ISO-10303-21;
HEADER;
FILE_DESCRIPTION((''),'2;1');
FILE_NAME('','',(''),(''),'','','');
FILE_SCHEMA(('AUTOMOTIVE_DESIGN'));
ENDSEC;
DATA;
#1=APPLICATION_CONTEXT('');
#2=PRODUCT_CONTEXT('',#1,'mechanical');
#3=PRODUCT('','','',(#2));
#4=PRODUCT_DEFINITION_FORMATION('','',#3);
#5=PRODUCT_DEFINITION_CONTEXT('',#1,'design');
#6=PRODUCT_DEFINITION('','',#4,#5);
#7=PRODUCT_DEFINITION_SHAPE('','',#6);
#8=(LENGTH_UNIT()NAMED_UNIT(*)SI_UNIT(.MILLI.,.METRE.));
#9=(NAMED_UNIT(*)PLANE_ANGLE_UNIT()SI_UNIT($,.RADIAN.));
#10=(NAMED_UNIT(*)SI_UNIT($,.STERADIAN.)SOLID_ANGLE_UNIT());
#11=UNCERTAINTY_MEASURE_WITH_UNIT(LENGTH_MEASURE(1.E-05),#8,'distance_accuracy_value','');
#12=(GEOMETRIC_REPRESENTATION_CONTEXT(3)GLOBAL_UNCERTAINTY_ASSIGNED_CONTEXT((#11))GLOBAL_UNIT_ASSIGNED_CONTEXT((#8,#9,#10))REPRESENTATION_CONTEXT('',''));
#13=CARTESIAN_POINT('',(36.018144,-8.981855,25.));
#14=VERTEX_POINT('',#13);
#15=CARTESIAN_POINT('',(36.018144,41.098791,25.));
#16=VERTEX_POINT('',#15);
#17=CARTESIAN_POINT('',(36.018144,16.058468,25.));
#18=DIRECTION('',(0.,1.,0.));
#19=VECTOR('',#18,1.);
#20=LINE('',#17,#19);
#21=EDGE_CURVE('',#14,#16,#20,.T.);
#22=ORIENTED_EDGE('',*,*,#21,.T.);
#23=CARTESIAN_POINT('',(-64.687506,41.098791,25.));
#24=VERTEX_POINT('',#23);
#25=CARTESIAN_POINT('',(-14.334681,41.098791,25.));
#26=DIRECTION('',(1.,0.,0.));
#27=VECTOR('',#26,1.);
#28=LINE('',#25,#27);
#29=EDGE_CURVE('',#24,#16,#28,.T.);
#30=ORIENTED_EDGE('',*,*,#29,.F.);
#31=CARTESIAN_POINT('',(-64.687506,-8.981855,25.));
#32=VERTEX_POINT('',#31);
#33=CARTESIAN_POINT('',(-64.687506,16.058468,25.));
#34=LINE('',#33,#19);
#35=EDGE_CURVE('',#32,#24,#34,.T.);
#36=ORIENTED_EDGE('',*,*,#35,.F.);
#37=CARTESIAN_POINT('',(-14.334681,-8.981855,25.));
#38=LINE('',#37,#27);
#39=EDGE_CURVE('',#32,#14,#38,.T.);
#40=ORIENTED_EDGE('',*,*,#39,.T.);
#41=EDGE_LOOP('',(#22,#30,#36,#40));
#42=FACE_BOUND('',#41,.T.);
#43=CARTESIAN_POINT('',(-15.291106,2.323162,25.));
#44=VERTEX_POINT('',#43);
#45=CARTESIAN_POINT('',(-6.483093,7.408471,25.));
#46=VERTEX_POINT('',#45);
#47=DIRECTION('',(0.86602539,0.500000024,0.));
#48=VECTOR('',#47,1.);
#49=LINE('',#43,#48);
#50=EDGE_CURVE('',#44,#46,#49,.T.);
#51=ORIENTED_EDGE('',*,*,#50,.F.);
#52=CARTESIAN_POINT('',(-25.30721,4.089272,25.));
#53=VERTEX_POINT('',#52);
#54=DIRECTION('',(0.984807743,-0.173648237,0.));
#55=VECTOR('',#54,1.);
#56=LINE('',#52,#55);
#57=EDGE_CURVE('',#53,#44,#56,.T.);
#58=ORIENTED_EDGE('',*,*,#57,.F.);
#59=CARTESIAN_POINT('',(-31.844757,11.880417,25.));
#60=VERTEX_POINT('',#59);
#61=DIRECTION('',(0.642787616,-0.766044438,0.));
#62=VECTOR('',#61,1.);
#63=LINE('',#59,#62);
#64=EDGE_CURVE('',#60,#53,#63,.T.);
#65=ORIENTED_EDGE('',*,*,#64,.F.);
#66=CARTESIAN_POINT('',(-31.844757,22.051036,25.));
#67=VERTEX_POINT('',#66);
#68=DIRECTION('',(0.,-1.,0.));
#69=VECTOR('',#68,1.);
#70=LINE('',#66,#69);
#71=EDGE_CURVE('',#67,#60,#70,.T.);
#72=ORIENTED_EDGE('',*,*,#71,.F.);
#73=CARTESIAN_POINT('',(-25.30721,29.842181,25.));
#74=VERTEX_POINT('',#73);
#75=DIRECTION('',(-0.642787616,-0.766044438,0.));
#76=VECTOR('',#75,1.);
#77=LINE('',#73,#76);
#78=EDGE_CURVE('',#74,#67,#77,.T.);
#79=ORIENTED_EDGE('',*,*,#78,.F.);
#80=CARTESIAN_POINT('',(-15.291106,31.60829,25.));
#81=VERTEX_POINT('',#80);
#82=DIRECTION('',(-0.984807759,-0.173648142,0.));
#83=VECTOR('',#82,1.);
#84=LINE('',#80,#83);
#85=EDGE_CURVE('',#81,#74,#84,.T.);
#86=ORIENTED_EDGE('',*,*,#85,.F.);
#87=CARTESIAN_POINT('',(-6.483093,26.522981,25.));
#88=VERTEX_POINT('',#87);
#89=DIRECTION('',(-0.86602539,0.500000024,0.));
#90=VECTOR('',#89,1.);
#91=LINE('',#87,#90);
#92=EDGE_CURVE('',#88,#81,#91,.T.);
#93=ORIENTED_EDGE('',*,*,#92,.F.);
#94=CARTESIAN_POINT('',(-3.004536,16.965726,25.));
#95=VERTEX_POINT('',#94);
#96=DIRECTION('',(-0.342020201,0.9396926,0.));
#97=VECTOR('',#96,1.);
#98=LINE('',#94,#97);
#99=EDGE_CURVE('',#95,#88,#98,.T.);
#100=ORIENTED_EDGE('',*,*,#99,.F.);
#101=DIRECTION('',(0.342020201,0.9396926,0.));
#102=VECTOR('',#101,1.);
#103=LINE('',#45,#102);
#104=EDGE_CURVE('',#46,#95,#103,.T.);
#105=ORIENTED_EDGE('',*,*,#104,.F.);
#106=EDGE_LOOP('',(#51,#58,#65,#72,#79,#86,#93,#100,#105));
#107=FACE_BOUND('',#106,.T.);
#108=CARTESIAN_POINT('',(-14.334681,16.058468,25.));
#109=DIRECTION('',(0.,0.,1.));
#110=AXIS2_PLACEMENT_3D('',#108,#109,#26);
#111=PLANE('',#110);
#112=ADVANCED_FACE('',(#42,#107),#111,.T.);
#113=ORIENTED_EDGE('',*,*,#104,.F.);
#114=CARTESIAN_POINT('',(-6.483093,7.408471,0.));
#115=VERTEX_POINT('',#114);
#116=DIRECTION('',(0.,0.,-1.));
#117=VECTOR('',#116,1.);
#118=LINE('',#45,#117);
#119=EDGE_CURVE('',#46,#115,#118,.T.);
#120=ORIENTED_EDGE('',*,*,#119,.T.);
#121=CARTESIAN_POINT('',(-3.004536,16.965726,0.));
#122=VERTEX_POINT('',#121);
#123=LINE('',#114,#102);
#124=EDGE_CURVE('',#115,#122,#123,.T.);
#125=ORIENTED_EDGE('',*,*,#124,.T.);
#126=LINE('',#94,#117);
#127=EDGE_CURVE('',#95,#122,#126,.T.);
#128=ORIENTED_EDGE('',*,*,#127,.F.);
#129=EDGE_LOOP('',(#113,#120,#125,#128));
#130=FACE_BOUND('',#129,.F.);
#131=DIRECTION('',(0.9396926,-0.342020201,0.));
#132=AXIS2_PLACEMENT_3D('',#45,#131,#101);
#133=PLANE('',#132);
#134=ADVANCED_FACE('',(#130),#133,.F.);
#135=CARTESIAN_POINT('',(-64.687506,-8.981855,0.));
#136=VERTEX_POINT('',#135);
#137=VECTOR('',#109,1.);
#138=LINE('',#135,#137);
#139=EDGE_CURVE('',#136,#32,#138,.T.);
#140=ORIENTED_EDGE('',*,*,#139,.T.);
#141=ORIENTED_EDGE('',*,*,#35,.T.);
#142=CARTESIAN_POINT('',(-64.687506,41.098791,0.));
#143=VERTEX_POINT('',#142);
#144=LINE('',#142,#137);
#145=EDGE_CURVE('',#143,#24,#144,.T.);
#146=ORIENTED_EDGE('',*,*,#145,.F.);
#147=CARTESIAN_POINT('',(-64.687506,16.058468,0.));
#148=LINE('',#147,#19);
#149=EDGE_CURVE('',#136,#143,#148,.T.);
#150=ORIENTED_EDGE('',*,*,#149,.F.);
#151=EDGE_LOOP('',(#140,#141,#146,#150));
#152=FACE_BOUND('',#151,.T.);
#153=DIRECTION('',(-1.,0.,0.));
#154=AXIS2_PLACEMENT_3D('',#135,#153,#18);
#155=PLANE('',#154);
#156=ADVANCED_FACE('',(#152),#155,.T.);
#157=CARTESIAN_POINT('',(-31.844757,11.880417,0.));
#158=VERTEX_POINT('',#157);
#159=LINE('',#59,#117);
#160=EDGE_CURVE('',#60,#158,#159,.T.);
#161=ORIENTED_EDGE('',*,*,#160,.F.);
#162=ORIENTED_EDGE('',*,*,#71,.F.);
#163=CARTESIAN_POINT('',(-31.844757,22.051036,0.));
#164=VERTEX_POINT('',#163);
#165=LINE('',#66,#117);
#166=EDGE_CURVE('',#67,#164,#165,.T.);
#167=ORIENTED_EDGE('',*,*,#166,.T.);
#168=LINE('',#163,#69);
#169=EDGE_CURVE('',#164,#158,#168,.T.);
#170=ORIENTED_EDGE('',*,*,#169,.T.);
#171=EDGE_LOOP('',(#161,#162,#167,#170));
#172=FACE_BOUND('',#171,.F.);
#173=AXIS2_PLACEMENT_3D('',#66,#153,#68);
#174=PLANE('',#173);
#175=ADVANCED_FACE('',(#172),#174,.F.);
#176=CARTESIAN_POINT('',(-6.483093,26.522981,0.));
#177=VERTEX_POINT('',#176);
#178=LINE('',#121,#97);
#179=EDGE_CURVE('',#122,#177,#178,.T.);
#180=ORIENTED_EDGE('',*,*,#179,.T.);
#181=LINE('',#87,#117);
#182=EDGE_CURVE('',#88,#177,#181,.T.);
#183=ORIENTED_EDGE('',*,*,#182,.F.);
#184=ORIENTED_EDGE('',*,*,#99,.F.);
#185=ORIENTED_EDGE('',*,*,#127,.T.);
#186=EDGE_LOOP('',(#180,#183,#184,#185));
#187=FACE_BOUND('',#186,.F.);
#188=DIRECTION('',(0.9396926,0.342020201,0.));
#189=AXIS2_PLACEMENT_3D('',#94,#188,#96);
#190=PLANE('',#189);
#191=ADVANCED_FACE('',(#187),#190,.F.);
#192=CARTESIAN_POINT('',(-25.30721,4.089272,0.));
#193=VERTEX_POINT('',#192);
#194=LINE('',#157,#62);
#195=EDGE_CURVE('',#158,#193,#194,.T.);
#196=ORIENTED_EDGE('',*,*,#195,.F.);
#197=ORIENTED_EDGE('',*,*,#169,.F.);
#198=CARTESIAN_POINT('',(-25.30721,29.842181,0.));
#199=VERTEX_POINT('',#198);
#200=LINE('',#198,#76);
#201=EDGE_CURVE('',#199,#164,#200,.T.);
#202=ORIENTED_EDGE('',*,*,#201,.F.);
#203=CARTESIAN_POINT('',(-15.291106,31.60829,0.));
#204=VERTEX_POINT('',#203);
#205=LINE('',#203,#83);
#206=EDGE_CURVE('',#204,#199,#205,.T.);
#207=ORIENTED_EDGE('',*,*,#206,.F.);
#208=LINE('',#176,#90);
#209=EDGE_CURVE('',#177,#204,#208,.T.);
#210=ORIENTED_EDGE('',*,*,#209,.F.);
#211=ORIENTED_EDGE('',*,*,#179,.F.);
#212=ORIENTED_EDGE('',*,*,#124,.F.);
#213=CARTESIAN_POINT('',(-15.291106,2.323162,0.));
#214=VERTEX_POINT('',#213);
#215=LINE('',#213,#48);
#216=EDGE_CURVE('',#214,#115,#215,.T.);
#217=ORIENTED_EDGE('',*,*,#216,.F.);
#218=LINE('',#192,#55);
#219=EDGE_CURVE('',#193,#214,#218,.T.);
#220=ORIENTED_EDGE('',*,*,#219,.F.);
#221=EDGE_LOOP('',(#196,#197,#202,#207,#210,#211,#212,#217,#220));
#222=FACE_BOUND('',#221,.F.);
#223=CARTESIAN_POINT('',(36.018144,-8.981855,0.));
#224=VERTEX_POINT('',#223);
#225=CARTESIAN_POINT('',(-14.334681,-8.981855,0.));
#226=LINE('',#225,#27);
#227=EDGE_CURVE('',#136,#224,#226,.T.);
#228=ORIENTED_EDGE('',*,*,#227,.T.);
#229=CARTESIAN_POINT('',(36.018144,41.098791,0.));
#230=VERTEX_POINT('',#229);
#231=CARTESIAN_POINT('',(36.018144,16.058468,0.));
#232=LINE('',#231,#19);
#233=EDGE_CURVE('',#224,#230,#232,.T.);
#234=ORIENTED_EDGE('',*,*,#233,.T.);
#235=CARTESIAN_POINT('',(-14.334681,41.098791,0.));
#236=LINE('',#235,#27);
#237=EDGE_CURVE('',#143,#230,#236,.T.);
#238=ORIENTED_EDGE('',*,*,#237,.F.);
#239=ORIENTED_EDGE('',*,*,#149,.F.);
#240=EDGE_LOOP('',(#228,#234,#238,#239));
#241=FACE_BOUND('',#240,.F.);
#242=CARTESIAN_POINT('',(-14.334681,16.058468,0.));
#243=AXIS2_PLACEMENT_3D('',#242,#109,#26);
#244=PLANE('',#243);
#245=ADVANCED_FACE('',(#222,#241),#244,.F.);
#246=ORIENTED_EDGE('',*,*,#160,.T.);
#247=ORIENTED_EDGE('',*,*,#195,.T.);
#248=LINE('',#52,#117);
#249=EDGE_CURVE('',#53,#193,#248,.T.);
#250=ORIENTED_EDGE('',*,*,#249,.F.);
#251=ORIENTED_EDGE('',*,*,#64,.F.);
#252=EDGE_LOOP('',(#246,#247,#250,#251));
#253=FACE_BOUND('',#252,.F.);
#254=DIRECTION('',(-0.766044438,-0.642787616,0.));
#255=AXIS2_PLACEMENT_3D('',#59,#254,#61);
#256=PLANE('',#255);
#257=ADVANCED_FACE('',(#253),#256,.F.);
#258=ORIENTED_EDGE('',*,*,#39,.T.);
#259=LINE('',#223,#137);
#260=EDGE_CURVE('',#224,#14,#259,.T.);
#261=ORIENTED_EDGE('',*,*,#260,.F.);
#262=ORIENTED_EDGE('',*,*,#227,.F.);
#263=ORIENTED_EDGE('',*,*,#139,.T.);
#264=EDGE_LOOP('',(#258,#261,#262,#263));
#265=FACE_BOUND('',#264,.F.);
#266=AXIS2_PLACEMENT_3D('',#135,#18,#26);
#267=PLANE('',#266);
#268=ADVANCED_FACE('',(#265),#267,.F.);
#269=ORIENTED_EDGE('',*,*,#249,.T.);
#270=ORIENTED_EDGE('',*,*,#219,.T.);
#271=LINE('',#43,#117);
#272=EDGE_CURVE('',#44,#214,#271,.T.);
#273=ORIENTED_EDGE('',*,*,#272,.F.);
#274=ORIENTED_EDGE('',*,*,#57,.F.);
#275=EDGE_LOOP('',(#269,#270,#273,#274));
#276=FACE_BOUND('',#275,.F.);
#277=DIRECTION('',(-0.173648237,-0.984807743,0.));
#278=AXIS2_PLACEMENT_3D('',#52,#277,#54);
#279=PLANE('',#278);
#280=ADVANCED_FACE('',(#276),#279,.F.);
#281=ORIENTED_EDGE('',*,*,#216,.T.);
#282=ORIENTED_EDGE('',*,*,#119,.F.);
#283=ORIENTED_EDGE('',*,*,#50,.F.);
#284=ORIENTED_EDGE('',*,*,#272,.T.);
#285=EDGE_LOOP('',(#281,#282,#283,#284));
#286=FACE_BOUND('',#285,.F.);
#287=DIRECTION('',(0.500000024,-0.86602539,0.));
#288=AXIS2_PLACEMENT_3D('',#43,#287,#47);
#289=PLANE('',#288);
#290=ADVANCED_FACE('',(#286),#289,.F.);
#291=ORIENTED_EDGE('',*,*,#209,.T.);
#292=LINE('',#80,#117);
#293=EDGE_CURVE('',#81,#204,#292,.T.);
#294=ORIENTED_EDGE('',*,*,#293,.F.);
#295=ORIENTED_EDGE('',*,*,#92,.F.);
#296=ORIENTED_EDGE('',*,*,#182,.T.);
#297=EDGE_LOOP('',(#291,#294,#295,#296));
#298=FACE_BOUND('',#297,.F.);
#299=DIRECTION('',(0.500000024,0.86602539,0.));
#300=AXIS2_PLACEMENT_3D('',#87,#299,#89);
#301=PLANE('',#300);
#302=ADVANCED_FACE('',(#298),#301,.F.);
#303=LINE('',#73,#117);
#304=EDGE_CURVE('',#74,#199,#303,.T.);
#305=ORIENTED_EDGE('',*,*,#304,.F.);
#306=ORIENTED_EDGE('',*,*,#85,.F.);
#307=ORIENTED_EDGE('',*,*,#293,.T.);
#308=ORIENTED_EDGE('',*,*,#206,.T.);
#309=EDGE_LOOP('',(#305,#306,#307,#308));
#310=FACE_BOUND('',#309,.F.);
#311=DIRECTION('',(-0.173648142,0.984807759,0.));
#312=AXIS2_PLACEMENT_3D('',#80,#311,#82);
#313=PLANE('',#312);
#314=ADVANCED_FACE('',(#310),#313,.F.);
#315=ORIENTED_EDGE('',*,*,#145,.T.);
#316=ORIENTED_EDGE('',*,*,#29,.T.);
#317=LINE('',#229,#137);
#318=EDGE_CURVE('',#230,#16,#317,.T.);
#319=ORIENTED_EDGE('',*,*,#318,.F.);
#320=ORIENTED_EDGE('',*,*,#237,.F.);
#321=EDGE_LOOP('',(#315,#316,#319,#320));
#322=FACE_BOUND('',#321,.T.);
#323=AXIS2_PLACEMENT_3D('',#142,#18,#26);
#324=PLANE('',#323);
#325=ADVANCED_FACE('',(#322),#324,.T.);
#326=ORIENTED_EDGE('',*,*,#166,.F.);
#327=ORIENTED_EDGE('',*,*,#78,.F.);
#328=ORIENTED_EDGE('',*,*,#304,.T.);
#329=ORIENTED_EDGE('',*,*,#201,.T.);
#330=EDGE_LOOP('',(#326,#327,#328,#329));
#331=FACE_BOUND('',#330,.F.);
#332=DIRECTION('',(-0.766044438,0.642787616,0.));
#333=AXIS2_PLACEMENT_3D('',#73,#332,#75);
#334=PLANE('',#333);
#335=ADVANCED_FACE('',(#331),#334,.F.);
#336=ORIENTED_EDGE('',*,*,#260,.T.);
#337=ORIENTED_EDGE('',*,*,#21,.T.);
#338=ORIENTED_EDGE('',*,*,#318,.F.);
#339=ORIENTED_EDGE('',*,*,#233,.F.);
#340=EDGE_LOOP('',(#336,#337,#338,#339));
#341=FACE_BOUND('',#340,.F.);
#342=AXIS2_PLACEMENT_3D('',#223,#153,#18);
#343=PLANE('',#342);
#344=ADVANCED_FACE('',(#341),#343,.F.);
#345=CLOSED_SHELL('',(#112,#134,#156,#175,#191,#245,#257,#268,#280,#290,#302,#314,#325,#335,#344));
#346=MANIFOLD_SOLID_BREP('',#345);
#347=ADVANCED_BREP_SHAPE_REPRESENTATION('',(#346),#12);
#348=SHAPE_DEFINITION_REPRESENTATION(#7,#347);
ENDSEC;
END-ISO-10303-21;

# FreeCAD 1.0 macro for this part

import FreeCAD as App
import Part
import Sketcher

V = App.Vector
Q = App.Units.Quantity


def add_polygon(sketch, points):
    """Adds a closed chain of lines whose ends are joined by coincident constraints."""
    first, n = sketch.GeometryCount, len(points)
    for a, b in zip(points, points[1:] + points[:1]):
        sketch.addGeometry(Part.LineSegment(App.Vector(*a, 0), App.Vector(*b, 0)), False)
    for i in range(n):
        sketch.addConstraint(Sketcher.Constraint("Coincident", first + i, 2, first + (i + 1) % n, 1))

doc = App.newDocument("Part")
body = doc.addObject("PartDesign::Body", "Body")

# Sketch on XY plane
sketch1 = doc.addObject("Sketcher::SketchObject", "Sketch")
body.addObject(sketch1)
sketch1.AttachmentSupport = (doc.XY_Plane, [""])
sketch1.MapMode = "FlatFace"
add_polygon(sketch1, [(-65, 41), (-65, -9), (36, -9), (36, 41)])  # lines 0-3
sketch1.addConstraint([
    Sketcher.Constraint("Vertical", 0),
    Sketcher.Constraint("Horizontal", 1),
    Sketcher.Constraint("Vertical", 2),
    Sketcher.Constraint("Horizontal", 3),
    Sketcher.Constraint("DistanceX", 1, 1, 1, 2, 100.705649),
    Sketcher.Constraint("DistanceY", 0, 2, 0, 1, 50.080647),
    Sketcher.Constraint("DistanceY", -1, 1, 2, 2, 41.098791),
    Sketcher.Constraint("DistanceX", 0, 2, -1, 1, 64.687506),
])
pad1 = doc.addObject("PartDesign::Pad", "Pad")
body.addObject(pad1)
pad1.Profile = sketch1
pad1.Length = 25

# Sketch on XY plane
sketch2 = doc.addObject("Sketcher::SketchObject", "Sketch001")
body.addObject(sketch2)
sketch2.AttachmentSupport = (doc.XY_Plane, [""])
sketch2.MapMode = "FlatFace"
sketch2.AttachmentOffset = App.Placement(V(0, 0, 25), App.Rotation())
add_polygon(sketch2, [(-32, 22), (-32, 12), (-25, 4), (-15, 2), (-6, 7), (-3, 17), (-6, 27), (-15, 32), (-25, 30)])  # lines 0-8
sketch2.addConstraint([
    Sketcher.Constraint("Vertical", 0),
    Sketcher.Constraint("Vertical", 3, 2, 5, 2),
    Sketcher.Constraint("Vertical", 2, 2, 6, 2),
    Sketcher.Constraint("Vertical", 1, 2, 7, 2),
    Sketcher.Constraint("Equal", 1, 2),
    Sketcher.Constraint("Equal", 2, 3),
    Sketcher.Constraint("Equal", 3, 4),
    Sketcher.Constraint("Equal", 4, 5),
    Sketcher.Constraint("Equal", 5, 6),
    Sketcher.Constraint("Equal", 6, 7),
    Sketcher.Constraint("Equal", 7, 8),
    Sketcher.Constraint("Angle", 1, Q("-50 deg")),
    Sketcher.Constraint("Angle", 2, Q("-10.000003 deg")),
    Sketcher.Constraint("Angle", 3, Q("30.000002 deg")),
    Sketcher.Constraint("Angle", 4, Q("69.999997 deg")),
    Sketcher.Constraint("DistanceY", 0, 2, 0, 1, 10.170619),
    Sketcher.Constraint("DistanceX", 1, 2, -1, 1, 25.30721),
    Sketcher.Constraint("DistanceY", -1, 1, 2, 2, 2.323162),
])
pocket1 = doc.addObject("PartDesign::Pocket", "Pocket")
body.addObject(pocket1)
pocket1.Profile = sketch2
pocket1.Length = 25

doc.recompute()
